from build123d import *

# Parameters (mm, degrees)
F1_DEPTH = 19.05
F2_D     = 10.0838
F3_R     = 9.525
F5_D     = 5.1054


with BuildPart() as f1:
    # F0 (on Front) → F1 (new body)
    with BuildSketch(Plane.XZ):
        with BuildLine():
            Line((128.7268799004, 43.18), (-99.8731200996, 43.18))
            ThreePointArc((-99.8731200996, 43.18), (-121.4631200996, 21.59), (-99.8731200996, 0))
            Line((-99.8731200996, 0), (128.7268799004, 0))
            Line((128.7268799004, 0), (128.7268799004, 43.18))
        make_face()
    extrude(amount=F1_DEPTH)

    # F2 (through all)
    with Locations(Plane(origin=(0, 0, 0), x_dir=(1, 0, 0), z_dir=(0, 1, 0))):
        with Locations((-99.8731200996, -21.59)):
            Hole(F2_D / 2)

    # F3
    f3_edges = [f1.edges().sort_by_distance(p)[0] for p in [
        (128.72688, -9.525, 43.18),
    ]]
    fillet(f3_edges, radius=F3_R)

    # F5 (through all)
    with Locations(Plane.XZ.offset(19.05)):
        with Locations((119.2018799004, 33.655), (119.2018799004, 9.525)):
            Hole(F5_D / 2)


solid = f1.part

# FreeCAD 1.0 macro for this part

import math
import FreeCAD as App
import Part
import Sketcher

V = App.Vector
Q = App.Units.Quantity


def edges_at(feature, points):
    """Names of the edges that pass closest to the given points."""
    edges = feature.Shape.Edges
    near = lambda p: min(range(len(edges)), key=lambda i: edges[i].distToShape(Part.Vertex(*p))[0])
    return sorted({f"Edge{near(p) + 1}" for p in points})

doc = App.newDocument("Part")
body = doc.addObject("PartDesign::Body", "Body")

# Sketch on XZ plane
sketch1 = body.newObject("Sketcher::SketchObject", "Sketch")
sketch1.AttachmentSupport = (doc.getObject("XZ_Plane"), [""])
sketch1.MapMode = "FlatFace"
sketch1.addGeometry([
    Part.LineSegment(V(129, 43, 0), V(-100, 43, 0)),
    Part.ArcOfCircle(Part.Circle(V(-100, 22, 0), V(0, 0, 1), 22), math.radians(90), math.radians(270)),
    Part.LineSegment(V(-100, 0, 0), V(129, 0, 0)),
    Part.LineSegment(V(129, 0, 0), V(129, 43, 0)),
], False)
sketch1.addConstraint([
    Sketcher.Constraint("Tangent", 0, 2, 1, 1),
    Sketcher.Constraint("Tangent", 1, 2, 2, 1),
    Sketcher.Constraint("Coincident", 2, 2, 3, 1),
    Sketcher.Constraint("Coincident", 3, 2, 0, 1),
    Sketcher.Constraint("Horizontal", 0),
    Sketcher.Constraint("Horizontal", 2),
    Sketcher.Constraint("Vertical", 3),
    Sketcher.Constraint("PointOnObject", 1, 2, -1),
    Sketcher.Constraint("DistanceX", 0, 2, 0, 1, Q("9 in")),
    Sketcher.Constraint("Radius", 1, Q("0.85 in")),
    Sketcher.Constraint("DistanceX", 1, 3, -1, 1, Q("99.87312 mm")),
])
pad1 = body.newObject("PartDesign::Pad", "Pad")
pad1.Profile = sketch1
pad1.Length = Q("0.75 in")

# Sketch on XZ plane
sketch2 = body.newObject("Sketcher::SketchObject", "Sketch001")
sketch2.AttachmentSupport = (doc.getObject("XZ_Plane"), [""])
sketch2.MapMode = "FlatFace"
sketch2.addGeometry(Part.Circle(V(-100, 22, 0), V(0, 0, 1), 5), False)
sketch2.addConstraint([
    Sketcher.Constraint("Diameter", 0, Q("0.397 in")),
    Sketcher.Constraint("DistanceY", -1, 1, 0, 3, Q("0.85 in")),
    Sketcher.Constraint("DistanceX", 0, 3, -1, 1, Q("99.87312 mm")),
])
doc.recompute()
hole = body.newObject("PartDesign::Hole", "Hole")
hole.Profile = sketch2
hole.ThreadType = "None"
hole.Diameter = Q("0.397 in")
hole.DepthType = "ThroughAll"
hole.Reversed = True
doc.recompute()

fillet = body.newObject("PartDesign::Fillet", "Fillet")
fillet.Base = (hole, edges_at(hole, [(128.727, -9.525, 43.18)]))
fillet.Radius = Q("0.375 in")

# Sketch on XZ plane
sketch3 = body.newObject("Sketcher::SketchObject", "Sketch002")
sketch3.AttachmentSupport = (doc.getObject("XZ_Plane"), [""])
sketch3.MapMode = "FlatFace"
sketch3.AttachmentOffset = App.Placement(V(0, 0, 0.75 * 25.4), App.Rotation())
sketch3.addGeometry([
    Part.Circle(V(119.2, 33.7, 0), V(0, 0, 1), 2.6),
    Part.Circle(V(119.2, 9.5, 0), V(0, 0, 1), 2.6),
], False)
sketch3.addConstraint([
    Sketcher.Constraint("Equal", 0, 1),
    Sketcher.Constraint("Vertical", 0, 3, 1, 3),
    Sketcher.Constraint("Diameter", 0, Q("0.201 in")),
    Sketcher.Constraint("DistanceY", 1, 3, 0, 3, Q("0.95 in")),
    Sketcher.Constraint("DistanceY", -1, 1, 0, 3, Q("1.325 in")),
    Sketcher.Constraint("DistanceX", -1, 1, 0, 3, Q("119.20188 mm")),
])
doc.recompute()
hole2 = body.newObject("PartDesign::Hole", "Hole001")
hole2.Profile = sketch3
hole2.ThreadType = "None"
hole2.Diameter = Q("0.201 in")
hole2.DepthType = "ThroughAll"

doc.recompute()
